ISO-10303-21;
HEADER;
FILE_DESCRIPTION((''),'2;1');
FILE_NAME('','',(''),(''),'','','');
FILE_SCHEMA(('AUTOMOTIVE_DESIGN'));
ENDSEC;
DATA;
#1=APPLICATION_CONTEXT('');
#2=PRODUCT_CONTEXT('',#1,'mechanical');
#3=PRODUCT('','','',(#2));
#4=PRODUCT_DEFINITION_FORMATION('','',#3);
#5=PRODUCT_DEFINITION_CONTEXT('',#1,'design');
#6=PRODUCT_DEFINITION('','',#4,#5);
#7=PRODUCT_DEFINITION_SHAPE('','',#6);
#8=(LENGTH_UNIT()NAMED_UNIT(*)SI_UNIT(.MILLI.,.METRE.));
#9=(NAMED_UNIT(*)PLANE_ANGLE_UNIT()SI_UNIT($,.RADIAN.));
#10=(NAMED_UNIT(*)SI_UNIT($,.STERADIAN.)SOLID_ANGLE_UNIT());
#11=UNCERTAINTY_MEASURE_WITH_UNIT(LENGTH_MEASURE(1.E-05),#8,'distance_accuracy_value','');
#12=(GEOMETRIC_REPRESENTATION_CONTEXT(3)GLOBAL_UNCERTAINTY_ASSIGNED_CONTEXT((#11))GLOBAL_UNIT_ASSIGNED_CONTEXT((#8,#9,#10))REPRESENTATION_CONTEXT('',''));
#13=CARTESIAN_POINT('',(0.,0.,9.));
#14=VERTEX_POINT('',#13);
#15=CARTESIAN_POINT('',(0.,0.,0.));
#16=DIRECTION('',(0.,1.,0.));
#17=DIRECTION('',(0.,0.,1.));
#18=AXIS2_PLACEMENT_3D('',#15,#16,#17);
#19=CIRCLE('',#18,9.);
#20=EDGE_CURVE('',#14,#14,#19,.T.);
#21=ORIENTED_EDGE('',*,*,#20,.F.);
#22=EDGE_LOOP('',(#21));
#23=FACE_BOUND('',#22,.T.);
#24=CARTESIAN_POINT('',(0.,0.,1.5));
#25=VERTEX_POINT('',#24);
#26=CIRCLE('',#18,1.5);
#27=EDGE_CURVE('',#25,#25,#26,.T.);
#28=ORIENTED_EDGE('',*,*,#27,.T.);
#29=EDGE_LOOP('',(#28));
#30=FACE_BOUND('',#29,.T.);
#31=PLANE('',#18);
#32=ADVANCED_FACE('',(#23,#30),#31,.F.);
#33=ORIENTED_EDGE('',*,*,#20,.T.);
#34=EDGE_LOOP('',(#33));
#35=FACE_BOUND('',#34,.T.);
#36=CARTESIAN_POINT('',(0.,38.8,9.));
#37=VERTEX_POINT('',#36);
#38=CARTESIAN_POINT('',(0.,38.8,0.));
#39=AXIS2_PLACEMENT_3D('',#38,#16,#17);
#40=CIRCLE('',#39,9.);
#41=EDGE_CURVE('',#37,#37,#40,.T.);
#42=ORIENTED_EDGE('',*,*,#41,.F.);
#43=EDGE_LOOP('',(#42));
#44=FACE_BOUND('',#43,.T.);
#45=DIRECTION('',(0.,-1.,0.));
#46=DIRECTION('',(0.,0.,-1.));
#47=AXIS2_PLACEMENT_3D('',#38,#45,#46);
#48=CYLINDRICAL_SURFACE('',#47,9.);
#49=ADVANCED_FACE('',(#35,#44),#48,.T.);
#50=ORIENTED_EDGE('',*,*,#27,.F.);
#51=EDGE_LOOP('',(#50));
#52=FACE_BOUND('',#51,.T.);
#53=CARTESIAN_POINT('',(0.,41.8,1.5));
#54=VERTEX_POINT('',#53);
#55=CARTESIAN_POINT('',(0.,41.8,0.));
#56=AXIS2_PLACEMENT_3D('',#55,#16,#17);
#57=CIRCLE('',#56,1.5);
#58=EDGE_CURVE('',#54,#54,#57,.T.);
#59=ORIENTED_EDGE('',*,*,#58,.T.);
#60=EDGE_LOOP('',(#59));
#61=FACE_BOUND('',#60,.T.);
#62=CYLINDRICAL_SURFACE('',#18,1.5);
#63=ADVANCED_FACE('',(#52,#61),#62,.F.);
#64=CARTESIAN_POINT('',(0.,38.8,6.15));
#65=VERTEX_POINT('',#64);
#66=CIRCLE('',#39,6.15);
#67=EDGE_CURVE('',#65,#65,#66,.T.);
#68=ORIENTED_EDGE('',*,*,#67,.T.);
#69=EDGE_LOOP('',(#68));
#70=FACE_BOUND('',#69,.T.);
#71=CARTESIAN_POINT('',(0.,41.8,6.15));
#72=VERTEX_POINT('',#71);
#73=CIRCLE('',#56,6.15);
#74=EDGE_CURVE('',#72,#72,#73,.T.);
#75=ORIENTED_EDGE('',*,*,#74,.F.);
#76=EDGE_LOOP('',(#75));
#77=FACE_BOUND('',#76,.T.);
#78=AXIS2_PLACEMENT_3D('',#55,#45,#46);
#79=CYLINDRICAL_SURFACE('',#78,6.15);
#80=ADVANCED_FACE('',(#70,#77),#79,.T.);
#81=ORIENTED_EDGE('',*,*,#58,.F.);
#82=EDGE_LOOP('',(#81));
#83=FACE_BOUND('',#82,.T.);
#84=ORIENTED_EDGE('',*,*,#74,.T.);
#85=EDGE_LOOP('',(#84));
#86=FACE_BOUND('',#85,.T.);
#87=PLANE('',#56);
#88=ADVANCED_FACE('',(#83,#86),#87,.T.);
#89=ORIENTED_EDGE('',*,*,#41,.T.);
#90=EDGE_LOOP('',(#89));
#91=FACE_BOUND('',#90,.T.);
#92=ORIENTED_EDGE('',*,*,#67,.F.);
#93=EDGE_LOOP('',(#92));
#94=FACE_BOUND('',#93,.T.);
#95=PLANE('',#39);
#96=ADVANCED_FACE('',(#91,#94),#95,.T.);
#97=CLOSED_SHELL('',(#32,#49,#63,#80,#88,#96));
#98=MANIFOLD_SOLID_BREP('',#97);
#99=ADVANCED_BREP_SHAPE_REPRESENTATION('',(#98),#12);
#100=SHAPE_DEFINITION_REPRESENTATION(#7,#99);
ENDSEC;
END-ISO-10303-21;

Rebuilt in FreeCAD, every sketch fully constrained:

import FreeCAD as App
import Part
import Sketcher

V = App.Vector

doc = App.newDocument("Part")
body = doc.addObject("PartDesign::Body", "Body")

# Sketch on XZ plane
sketch1 = body.newObject("Sketcher::SketchObject", "Sketch")
sketch1.AttachmentSupport = (doc.getObject("XZ_Plane"), [""])
sketch1.MapMode = "FlatFace"
sketch1.addGeometry(Part.Circle(V(0, 0, 0), V(0, 0, 1), 9), False)
sketch1.addGeometry(Part.Circle(V(0, 0, 0), V(0, 0, 1), 6), False)
sketch1.addConstraint(Sketcher.Constraint("Coincident", 0, 3, -1, 1))
sketch1.addConstraint(Sketcher.Constraint("Coincident", 1, 3, -1, 1))
sketch1.addConstraint(Sketcher.Constraint("Diameter", 0, 18.0))
sketch1.addConstraint(Sketcher.Constraint("Diameter", 1, 12.3))
pad1 = body.newObject("PartDesign::Pad", "Pad")
pad1.Profile = sketch1
pad1.Length = 38.8
pad1.Reversed = True

# Sketch on XZ plane
sketch2 = body.newObject("Sketcher::SketchObject", "Sketch001")
sketch2.AttachmentSupport = (doc.getObject("XZ_Plane"), [""])
sketch2.MapMode = "FlatFace"
sketch2.addGeometry(Part.Circle(V(0, 0, 0), V(0, 0, 1), 6), False)
sketch2.addConstraint(Sketcher.Constraint("Coincident", 0, 3, -1, 1))
sketch2.addConstraint(Sketcher.Constraint("Diameter", 0, 12.3))
pad2 = body.newObject("PartDesign::Pad", "Pad001")
pad2.Profile = sketch2
pad2.Length = 41.8
pad2.Reversed = True

# Sketch on XZ plane
sketch3 = body.newObject("Sketcher::SketchObject", "Sketch002")
sketch3.AttachmentSupport = (doc.getObject("XZ_Plane"), [""])
sketch3.MapMode = "FlatFace"
sketch3.AttachmentOffset = App.Placement(V(0, 0, -41.8), App.Rotation())
sketch3.addGeometry(Part.Circle(V(0, 0, 0), V(0, 0, 1), 1.5), False)
sketch3.addConstraint(Sketcher.Constraint("Coincident", 0, 3, -1, 1))
sketch3.addConstraint(Sketcher.Constraint("Diameter", 0, 3.0))
pocket1 = body.newObject("PartDesign::Pocket", "Pocket")
pocket1.Profile = sketch3
pocket1.Type = "ThroughAll"
pocket1.Reversed = True

doc.recompute()
